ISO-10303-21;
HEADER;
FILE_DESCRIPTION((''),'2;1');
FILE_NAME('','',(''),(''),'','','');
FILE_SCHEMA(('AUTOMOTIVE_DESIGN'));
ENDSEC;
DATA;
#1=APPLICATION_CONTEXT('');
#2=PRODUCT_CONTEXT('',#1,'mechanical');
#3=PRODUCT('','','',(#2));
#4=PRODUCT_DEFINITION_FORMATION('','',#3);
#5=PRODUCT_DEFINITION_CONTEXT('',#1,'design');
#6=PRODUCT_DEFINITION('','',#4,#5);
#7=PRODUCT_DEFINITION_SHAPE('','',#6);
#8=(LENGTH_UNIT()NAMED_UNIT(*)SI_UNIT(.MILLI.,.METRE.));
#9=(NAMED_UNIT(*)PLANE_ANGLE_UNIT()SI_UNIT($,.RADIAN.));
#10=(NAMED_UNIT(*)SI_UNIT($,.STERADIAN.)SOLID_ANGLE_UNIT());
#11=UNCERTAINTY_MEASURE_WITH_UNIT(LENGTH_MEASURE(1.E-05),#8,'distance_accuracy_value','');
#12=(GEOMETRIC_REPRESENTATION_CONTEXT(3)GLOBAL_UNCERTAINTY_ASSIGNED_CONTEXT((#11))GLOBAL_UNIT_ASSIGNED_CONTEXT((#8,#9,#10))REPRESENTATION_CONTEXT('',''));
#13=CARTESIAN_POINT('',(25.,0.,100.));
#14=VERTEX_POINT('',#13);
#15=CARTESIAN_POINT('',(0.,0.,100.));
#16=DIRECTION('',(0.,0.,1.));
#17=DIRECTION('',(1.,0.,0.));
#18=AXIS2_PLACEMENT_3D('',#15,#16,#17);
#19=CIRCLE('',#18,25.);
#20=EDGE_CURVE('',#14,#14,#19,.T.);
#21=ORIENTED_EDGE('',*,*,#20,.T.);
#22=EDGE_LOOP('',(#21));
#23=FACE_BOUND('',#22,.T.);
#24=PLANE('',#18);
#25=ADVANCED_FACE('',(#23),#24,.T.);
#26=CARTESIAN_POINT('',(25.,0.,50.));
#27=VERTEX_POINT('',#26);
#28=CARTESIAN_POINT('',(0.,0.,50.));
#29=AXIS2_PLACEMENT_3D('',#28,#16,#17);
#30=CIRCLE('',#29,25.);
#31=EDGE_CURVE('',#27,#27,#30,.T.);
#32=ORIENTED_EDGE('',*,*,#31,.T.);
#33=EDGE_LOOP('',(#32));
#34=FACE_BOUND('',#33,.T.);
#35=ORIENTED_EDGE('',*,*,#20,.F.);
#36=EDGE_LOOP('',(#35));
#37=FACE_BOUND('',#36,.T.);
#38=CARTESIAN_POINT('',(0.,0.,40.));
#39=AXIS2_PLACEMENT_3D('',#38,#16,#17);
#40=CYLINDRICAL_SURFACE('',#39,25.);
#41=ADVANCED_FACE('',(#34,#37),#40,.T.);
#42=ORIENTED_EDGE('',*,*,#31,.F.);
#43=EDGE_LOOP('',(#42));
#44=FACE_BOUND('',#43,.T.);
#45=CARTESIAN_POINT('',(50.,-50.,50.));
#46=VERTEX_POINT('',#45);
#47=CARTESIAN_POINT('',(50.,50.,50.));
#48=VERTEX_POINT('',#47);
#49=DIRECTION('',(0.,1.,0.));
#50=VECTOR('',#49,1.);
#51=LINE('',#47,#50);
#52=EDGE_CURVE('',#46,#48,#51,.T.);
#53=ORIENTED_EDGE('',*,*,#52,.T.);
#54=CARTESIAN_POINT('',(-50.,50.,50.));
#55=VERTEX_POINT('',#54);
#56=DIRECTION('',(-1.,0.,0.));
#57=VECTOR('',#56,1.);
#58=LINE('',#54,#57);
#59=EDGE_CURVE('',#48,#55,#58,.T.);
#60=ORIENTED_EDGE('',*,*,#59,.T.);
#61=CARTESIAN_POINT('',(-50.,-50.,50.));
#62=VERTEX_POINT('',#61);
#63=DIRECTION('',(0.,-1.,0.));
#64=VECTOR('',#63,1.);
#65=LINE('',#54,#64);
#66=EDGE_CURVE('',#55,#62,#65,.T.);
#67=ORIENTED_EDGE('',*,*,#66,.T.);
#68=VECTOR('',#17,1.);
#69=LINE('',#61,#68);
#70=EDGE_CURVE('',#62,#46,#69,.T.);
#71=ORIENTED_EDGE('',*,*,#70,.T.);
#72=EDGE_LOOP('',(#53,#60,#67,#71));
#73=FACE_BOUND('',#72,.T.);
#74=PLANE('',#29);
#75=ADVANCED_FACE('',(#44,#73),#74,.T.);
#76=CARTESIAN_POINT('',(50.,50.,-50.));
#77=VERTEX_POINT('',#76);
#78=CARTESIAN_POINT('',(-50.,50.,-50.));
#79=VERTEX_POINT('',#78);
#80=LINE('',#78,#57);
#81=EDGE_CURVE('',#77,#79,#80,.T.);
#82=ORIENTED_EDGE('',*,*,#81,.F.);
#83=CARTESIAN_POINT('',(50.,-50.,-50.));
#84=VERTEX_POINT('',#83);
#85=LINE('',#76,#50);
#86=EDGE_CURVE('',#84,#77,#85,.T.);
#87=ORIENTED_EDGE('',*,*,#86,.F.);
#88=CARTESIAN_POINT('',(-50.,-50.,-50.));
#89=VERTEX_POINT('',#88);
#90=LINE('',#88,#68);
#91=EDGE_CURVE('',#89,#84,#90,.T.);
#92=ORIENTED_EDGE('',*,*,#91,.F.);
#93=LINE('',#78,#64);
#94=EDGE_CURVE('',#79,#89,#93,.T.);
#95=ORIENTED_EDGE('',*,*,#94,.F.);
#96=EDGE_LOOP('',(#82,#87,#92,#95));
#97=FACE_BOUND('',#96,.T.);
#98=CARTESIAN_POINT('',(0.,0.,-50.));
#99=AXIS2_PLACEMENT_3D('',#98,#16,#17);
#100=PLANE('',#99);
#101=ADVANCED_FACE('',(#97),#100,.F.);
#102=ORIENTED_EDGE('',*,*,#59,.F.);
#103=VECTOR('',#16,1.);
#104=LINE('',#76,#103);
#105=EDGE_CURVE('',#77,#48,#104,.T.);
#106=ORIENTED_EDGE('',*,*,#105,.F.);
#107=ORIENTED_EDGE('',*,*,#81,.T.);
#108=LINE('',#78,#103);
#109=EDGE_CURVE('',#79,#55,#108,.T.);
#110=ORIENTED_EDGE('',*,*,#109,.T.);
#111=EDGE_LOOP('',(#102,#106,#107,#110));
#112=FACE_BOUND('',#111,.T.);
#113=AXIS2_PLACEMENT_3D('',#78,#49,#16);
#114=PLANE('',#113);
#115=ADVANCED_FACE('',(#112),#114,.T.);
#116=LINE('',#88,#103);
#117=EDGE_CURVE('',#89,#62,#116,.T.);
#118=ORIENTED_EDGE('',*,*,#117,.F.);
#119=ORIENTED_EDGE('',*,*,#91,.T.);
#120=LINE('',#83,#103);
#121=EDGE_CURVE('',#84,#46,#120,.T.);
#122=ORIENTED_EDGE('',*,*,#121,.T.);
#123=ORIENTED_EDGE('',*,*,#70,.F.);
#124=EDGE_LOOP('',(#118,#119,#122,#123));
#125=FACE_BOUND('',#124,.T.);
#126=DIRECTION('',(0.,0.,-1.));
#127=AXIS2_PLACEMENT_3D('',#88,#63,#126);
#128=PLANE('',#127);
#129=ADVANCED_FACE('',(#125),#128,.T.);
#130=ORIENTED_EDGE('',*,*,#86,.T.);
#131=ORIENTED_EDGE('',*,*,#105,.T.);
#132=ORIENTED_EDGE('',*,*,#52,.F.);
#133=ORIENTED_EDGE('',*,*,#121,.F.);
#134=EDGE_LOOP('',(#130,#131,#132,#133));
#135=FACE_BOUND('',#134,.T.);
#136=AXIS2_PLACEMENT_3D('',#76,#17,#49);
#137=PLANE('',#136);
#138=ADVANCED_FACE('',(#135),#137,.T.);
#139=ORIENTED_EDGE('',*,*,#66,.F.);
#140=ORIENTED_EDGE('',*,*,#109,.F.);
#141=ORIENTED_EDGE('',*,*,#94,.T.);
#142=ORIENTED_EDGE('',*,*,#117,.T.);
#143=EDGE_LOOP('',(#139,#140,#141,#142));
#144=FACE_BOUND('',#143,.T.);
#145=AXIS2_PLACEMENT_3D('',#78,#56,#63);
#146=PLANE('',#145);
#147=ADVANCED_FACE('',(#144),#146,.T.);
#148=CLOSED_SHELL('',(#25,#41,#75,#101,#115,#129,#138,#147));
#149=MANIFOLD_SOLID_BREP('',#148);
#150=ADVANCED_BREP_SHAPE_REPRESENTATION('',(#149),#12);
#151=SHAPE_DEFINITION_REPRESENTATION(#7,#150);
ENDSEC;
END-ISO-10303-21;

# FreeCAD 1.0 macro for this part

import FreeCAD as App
import Part
import Sketcher

V = App.Vector


def add_polygon(sketch, points):
    """Adds a closed chain of lines whose ends are joined by coincident constraints."""
    first, n = sketch.GeometryCount, len(points)
    for a, b in zip(points, points[1:] + points[:1]):
        sketch.addGeometry(Part.LineSegment(App.Vector(*a, 0), App.Vector(*b, 0)), False)
    for i in range(n):
        sketch.addConstraint(Sketcher.Constraint("Coincident", first + i, 2, first + (i + 1) % n, 1))

doc = App.newDocument("Part")
body = doc.addObject("PartDesign::Body", "Body")

sketch1 = body.newObject("Sketcher::SketchObject", "Sketch")
sketch1.AttachmentSupport = (doc.getObject("XY_Plane"), [""])
sketch1.MapMode = "FlatFace"
add_polygon(sketch1, [(-50, 50), (-50, -50), (50, -50), (50, 50)])
sketch1.addConstraint([
    Sketcher.Constraint("Vertical", 0),
    Sketcher.Constraint("Horizontal", 1),
    Sketcher.Constraint("Vertical", 2),
    Sketcher.Constraint("Horizontal", 3),
    Sketcher.Constraint("Symmetric", 0, 2, 2, 2, -1, 1),
    Sketcher.Constraint("Equal", 3, 0),
    Sketcher.Constraint("DistanceX", 1, 1, 1, 2, 100.0),
])
pad1 = body.newObject("PartDesign::Pad", "Pad")
pad1.Profile = sketch1
pad1.Type = "TwoLengths"
pad1.Length = 50
pad1.Length2 = 50

sketch2 = body.newObject("Sketcher::SketchObject", "Sketch001")
sketch2.AttachmentSupport = (doc.getObject("XY_Plane"), [""])
sketch2.MapMode = "FlatFace"
sketch2.AttachmentOffset = App.Placement(V(0, 0, 100), App.Rotation())
sketch2.addGeometry(Part.Circle(V(0, 0, 0), V(0, 0, 1), 25), False)
sketch2.addConstraint([
    Sketcher.Constraint("Coincident", 0, 3, -1, 1),
    Sketcher.Constraint("Diameter", 0, 50.0),
])
pad2 = body.newObject("PartDesign::Pad", "Pad001")
pad2.Profile = sketch2
pad2.Length = 60
pad2.Reversed = True

doc.recompute()
